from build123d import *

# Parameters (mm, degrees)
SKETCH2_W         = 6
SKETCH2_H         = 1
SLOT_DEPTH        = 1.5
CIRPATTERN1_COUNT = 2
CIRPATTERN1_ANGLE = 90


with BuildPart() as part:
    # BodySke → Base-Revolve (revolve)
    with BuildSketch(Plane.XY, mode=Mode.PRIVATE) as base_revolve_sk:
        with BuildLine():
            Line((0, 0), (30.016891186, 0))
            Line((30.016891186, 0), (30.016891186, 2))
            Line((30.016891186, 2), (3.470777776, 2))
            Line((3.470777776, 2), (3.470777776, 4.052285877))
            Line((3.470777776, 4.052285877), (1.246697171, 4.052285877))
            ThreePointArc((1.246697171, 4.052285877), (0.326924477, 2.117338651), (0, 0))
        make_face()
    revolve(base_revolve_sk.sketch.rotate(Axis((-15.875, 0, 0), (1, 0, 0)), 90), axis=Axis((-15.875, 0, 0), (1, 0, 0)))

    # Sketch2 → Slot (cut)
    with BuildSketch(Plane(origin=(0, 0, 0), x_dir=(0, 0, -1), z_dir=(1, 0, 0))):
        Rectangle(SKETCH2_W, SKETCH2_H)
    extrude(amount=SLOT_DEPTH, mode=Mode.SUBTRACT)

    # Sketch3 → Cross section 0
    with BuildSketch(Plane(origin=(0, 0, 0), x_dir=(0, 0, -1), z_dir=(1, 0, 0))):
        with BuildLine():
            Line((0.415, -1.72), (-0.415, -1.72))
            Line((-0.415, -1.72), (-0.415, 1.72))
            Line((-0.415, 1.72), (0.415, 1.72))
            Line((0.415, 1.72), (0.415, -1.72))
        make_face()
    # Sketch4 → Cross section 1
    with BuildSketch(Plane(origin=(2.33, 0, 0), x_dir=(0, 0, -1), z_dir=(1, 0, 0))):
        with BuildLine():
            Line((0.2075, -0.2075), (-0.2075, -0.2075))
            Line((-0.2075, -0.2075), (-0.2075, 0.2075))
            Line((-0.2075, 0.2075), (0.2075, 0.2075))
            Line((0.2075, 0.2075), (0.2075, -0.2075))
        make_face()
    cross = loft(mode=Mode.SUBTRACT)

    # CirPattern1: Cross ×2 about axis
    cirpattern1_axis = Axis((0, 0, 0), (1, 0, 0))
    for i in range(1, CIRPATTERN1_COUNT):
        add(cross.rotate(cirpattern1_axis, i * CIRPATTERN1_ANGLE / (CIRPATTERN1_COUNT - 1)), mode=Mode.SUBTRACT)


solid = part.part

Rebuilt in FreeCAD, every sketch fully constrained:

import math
import FreeCAD as App
import Part
import Sketcher
from FreeCAD import Vector
Q = App.Units.Quantity

doc = App.newDocument("Part")
body = doc.addObject("PartDesign::Body", "Body")

# Sketch on XY plane
sketch1 = body.newObject("Sketcher::SketchObject", "Sketch")
sketch1.AttachmentSupport = (doc.getObject("XY_Plane"), [""])
sketch1.MapMode = "FlatFace"
sketch1.addGeometry(Part.LineSegment(Vector(0, 0, 0), Vector(30, 0, 0)), False)
sketch1.addGeometry(Part.LineSegment(Vector(30, 0, 0), Vector(30, 2, 0)), False)
sketch1.addGeometry(Part.LineSegment(Vector(30, 2, 0), Vector(3.5, 2, 0)), False)
sketch1.addGeometry(Part.LineSegment(Vector(3.5, 2, 0), Vector(3.5, 4.1, 0)), False)
sketch1.addGeometry(Part.LineSegment(Vector(3.5, 4.1, 0), Vector(1.2, 4.1, 0)), False)
sketch1.addGeometry(Part.ArcOfCircle(Part.Circle(Vector(7.4, -0.1, 0), Vector(0, 0, 1), 7.4), math.radians(146), math.radians(180)), False)
sketch1.addConstraint(Sketcher.Constraint("Coincident", 0, 2, 1, 1))
sketch1.addConstraint(Sketcher.Constraint("Coincident", 1, 2, 2, 1))
sketch1.addConstraint(Sketcher.Constraint("Coincident", 2, 2, 3, 1))
sketch1.addConstraint(Sketcher.Constraint("Coincident", 3, 2, 4, 1))
sketch1.addConstraint(Sketcher.Constraint("Coincident", 4, 2, 5, 1))
sketch1.addConstraint(Sketcher.Constraint("Coincident", 5, 2, 0, 1))
sketch1.addConstraint(Sketcher.Constraint("Horizontal", 0))
sketch1.addConstraint(Sketcher.Constraint("Vertical", 1))
sketch1.addConstraint(Sketcher.Constraint("Horizontal", 2))
sketch1.addConstraint(Sketcher.Constraint("Vertical", 3))
sketch1.addConstraint(Sketcher.Constraint("Horizontal", 4))
sketch1.addConstraint(Sketcher.Constraint("Coincident", 5, 2, -1, 1))
sketch1.addConstraint(Sketcher.Constraint("Radius", 5, Q("7.4 mm")))
sketch1.addConstraint(Sketcher.Constraint("DistanceY", 1, 1, 1, 2, Q("2 mm")))
sketch1.addConstraint(Sketcher.Constraint("DistanceX", 0, 1, 0, 2, Q("30.016891 mm")))
sketch1.addConstraint(Sketcher.Constraint("DistanceX", 4, 2, 4, 1, Q("2.224081 mm")))
sketch1.addConstraint(Sketcher.Constraint("DistanceX", 2, 2, 2, 1, Q("26.546113 mm")))
sketch1.addConstraint(Sketcher.Constraint("DistanceY", 3, 1, 3, 2, Q("2.052286 mm")))
revolution = body.newObject("PartDesign::Revolution", "Revolution")
revolution.Profile = sketch1
revolution.ReferenceAxis = (sketch1, ["H_Axis"])
revolution.Angle = 360

# Sketch on YZ plane
sketch2 = body.newObject("Sketcher::SketchObject", "Sketch001")
sketch2.AttachmentSupport = (doc.getObject("YZ_Plane"), [""])
sketch2.MapMode = "FlatFace"
sketch2.addGeometry(Part.LineSegment(Vector(0.5, 3, 0), Vector(-0.5, 3, 0)), False)
sketch2.addGeometry(Part.LineSegment(Vector(-0.5, 3, 0), Vector(-0.5, -3, 0)), False)
sketch2.addGeometry(Part.LineSegment(Vector(-0.5, -3, 0), Vector(0.5, -3, 0)), False)
sketch2.addGeometry(Part.LineSegment(Vector(0.5, -3, 0), Vector(0.5, 3, 0)), False)
sketch2.addConstraint(Sketcher.Constraint("Coincident", 0, 2, 1, 1))
sketch2.addConstraint(Sketcher.Constraint("Coincident", 1, 2, 2, 1))
sketch2.addConstraint(Sketcher.Constraint("Coincident", 2, 2, 3, 1))
sketch2.addConstraint(Sketcher.Constraint("Coincident", 3, 2, 0, 1))
sketch2.addConstraint(Sketcher.Constraint("Horizontal", 0))
sketch2.addConstraint(Sketcher.Constraint("Vertical", 1))
sketch2.addConstraint(Sketcher.Constraint("Horizontal", 2))
sketch2.addConstraint(Sketcher.Constraint("Vertical", 3))
sketch2.addConstraint(Sketcher.Constraint("Symmetric", 0, 2, 2, 2, -1, 1))
sketch2.addConstraint(Sketcher.Constraint("DistanceX", 0, 2, 0, 1, Q("1 mm")))
sketch2.addConstraint(Sketcher.Constraint("DistanceY", 1, 2, 1, 1, Q("6 mm")))
pocket1 = body.newObject("PartDesign::Pocket", "Pocket")
pocket1.Profile = sketch2
pocket1.Length = 1.5
pocket1.Reversed = True

# Sketch on YZ plane
sketch3 = body.newObject("Sketcher::SketchObject", "Sketch002")
sketch3.AttachmentSupport = (doc.getObject("YZ_Plane"), [""])
sketch3.MapMode = "FlatFace"
sketch3.addGeometry(Part.LineSegment(Vector(-1.7, 0.4, 0), Vector(-1.7, -0.4, 0)), False)
sketch3.addGeometry(Part.LineSegment(Vector(-1.7, -0.4, 0), Vector(1.7, -0.4, 0)), False)
sketch3.addGeometry(Part.LineSegment(Vector(1.7, -0.4, 0), Vector(1.7, 0.4, 0)), False)
sketch3.addGeometry(Part.LineSegment(Vector(1.7, 0.4, 0), Vector(-1.7, 0.4, 0)), False)
sketch3.addConstraint(Sketcher.Constraint("Coincident", 0, 2, 1, 1))
sketch3.addConstraint(Sketcher.Constraint("Coincident", 1, 2, 2, 1))
sketch3.addConstraint(Sketcher.Constraint("Coincident", 2, 2, 3, 1))
sketch3.addConstraint(Sketcher.Constraint("Coincident", 3, 2, 0, 1))
sketch3.addConstraint(Sketcher.Constraint("Vertical", 0))
sketch3.addConstraint(Sketcher.Constraint("Horizontal", 1))
sketch3.addConstraint(Sketcher.Constraint("Vertical", 2))
sketch3.addConstraint(Sketcher.Constraint("Horizontal", 3))
sketch3.addConstraint(Sketcher.Constraint("Symmetric", 0, 2, 2, 2, -1, 1))
sketch3.addConstraint(Sketcher.Constraint("DistanceX", 1, 1, 1, 2, Q("3.44 mm")))
sketch3.addConstraint(Sketcher.Constraint("DistanceY", 0, 2, 0, 1, Q("0.83 mm")))

# Sketch on YZ plane
sketch4 = body.newObject("Sketcher::SketchObject", "Sketch003")
sketch4.AttachmentSupport = (doc.getObject("YZ_Plane"), [""])
sketch4.MapMode = "FlatFace"
sketch4.AttachmentOffset = App.Placement(Vector(0, 0, 2.33), App.Rotation())
sketch4.addGeometry(Part.LineSegment(Vector(-0.21, 0.21, 0), Vector(-0.21, -0.21, 0)), False)
sketch4.addGeometry(Part.LineSegment(Vector(-0.21, -0.21, 0), Vector(0.21, -0.21, 0)), False)
sketch4.addGeometry(Part.LineSegment(Vector(0.21, -0.21, 0), Vector(0.21, 0.21, 0)), False)
sketch4.addGeometry(Part.LineSegment(Vector(0.21, 0.21, 0), Vector(-0.21, 0.21, 0)), False)
sketch4.addConstraint(Sketcher.Constraint("Coincident", 0, 2, 1, 1))
sketch4.addConstraint(Sketcher.Constraint("Coincident", 1, 2, 2, 1))
sketch4.addConstraint(Sketcher.Constraint("Coincident", 2, 2, 3, 1))
sketch4.addConstraint(Sketcher.Constraint("Coincident", 3, 2, 0, 1))
sketch4.addConstraint(Sketcher.Constraint("Vertical", 0))
sketch4.addConstraint(Sketcher.Constraint("Horizontal", 1))
sketch4.addConstraint(Sketcher.Constraint("Vertical", 2))
sketch4.addConstraint(Sketcher.Constraint("Horizontal", 3))
sketch4.addConstraint(Sketcher.Constraint("Symmetric", 0, 2, 2, 2, -1, 1))
sketch4.addConstraint(Sketcher.Constraint("Equal", 3, 0))
sketch4.addConstraint(Sketcher.Constraint("DistanceX", 1, 1, 1, 2, Q("0.415 mm")))

subtractiveloft = body.newObject("PartDesign::SubtractiveLoft", "SubtractiveLoft")
subtractiveloft.Profile = sketch3
subtractiveloft.Sections = [sketch4]
doc.recompute()

polarpattern = body.newObject("PartDesign::PolarPattern", "PolarPattern")
polarpattern.Originals = [subtractiveloft]
polarpattern.Axis = (doc.getObject("X_Axis"), [""])
polarpattern.Angle = 90
polarpattern.Occurrences = 2
body.Tip = polarpattern

doc.recompute()
